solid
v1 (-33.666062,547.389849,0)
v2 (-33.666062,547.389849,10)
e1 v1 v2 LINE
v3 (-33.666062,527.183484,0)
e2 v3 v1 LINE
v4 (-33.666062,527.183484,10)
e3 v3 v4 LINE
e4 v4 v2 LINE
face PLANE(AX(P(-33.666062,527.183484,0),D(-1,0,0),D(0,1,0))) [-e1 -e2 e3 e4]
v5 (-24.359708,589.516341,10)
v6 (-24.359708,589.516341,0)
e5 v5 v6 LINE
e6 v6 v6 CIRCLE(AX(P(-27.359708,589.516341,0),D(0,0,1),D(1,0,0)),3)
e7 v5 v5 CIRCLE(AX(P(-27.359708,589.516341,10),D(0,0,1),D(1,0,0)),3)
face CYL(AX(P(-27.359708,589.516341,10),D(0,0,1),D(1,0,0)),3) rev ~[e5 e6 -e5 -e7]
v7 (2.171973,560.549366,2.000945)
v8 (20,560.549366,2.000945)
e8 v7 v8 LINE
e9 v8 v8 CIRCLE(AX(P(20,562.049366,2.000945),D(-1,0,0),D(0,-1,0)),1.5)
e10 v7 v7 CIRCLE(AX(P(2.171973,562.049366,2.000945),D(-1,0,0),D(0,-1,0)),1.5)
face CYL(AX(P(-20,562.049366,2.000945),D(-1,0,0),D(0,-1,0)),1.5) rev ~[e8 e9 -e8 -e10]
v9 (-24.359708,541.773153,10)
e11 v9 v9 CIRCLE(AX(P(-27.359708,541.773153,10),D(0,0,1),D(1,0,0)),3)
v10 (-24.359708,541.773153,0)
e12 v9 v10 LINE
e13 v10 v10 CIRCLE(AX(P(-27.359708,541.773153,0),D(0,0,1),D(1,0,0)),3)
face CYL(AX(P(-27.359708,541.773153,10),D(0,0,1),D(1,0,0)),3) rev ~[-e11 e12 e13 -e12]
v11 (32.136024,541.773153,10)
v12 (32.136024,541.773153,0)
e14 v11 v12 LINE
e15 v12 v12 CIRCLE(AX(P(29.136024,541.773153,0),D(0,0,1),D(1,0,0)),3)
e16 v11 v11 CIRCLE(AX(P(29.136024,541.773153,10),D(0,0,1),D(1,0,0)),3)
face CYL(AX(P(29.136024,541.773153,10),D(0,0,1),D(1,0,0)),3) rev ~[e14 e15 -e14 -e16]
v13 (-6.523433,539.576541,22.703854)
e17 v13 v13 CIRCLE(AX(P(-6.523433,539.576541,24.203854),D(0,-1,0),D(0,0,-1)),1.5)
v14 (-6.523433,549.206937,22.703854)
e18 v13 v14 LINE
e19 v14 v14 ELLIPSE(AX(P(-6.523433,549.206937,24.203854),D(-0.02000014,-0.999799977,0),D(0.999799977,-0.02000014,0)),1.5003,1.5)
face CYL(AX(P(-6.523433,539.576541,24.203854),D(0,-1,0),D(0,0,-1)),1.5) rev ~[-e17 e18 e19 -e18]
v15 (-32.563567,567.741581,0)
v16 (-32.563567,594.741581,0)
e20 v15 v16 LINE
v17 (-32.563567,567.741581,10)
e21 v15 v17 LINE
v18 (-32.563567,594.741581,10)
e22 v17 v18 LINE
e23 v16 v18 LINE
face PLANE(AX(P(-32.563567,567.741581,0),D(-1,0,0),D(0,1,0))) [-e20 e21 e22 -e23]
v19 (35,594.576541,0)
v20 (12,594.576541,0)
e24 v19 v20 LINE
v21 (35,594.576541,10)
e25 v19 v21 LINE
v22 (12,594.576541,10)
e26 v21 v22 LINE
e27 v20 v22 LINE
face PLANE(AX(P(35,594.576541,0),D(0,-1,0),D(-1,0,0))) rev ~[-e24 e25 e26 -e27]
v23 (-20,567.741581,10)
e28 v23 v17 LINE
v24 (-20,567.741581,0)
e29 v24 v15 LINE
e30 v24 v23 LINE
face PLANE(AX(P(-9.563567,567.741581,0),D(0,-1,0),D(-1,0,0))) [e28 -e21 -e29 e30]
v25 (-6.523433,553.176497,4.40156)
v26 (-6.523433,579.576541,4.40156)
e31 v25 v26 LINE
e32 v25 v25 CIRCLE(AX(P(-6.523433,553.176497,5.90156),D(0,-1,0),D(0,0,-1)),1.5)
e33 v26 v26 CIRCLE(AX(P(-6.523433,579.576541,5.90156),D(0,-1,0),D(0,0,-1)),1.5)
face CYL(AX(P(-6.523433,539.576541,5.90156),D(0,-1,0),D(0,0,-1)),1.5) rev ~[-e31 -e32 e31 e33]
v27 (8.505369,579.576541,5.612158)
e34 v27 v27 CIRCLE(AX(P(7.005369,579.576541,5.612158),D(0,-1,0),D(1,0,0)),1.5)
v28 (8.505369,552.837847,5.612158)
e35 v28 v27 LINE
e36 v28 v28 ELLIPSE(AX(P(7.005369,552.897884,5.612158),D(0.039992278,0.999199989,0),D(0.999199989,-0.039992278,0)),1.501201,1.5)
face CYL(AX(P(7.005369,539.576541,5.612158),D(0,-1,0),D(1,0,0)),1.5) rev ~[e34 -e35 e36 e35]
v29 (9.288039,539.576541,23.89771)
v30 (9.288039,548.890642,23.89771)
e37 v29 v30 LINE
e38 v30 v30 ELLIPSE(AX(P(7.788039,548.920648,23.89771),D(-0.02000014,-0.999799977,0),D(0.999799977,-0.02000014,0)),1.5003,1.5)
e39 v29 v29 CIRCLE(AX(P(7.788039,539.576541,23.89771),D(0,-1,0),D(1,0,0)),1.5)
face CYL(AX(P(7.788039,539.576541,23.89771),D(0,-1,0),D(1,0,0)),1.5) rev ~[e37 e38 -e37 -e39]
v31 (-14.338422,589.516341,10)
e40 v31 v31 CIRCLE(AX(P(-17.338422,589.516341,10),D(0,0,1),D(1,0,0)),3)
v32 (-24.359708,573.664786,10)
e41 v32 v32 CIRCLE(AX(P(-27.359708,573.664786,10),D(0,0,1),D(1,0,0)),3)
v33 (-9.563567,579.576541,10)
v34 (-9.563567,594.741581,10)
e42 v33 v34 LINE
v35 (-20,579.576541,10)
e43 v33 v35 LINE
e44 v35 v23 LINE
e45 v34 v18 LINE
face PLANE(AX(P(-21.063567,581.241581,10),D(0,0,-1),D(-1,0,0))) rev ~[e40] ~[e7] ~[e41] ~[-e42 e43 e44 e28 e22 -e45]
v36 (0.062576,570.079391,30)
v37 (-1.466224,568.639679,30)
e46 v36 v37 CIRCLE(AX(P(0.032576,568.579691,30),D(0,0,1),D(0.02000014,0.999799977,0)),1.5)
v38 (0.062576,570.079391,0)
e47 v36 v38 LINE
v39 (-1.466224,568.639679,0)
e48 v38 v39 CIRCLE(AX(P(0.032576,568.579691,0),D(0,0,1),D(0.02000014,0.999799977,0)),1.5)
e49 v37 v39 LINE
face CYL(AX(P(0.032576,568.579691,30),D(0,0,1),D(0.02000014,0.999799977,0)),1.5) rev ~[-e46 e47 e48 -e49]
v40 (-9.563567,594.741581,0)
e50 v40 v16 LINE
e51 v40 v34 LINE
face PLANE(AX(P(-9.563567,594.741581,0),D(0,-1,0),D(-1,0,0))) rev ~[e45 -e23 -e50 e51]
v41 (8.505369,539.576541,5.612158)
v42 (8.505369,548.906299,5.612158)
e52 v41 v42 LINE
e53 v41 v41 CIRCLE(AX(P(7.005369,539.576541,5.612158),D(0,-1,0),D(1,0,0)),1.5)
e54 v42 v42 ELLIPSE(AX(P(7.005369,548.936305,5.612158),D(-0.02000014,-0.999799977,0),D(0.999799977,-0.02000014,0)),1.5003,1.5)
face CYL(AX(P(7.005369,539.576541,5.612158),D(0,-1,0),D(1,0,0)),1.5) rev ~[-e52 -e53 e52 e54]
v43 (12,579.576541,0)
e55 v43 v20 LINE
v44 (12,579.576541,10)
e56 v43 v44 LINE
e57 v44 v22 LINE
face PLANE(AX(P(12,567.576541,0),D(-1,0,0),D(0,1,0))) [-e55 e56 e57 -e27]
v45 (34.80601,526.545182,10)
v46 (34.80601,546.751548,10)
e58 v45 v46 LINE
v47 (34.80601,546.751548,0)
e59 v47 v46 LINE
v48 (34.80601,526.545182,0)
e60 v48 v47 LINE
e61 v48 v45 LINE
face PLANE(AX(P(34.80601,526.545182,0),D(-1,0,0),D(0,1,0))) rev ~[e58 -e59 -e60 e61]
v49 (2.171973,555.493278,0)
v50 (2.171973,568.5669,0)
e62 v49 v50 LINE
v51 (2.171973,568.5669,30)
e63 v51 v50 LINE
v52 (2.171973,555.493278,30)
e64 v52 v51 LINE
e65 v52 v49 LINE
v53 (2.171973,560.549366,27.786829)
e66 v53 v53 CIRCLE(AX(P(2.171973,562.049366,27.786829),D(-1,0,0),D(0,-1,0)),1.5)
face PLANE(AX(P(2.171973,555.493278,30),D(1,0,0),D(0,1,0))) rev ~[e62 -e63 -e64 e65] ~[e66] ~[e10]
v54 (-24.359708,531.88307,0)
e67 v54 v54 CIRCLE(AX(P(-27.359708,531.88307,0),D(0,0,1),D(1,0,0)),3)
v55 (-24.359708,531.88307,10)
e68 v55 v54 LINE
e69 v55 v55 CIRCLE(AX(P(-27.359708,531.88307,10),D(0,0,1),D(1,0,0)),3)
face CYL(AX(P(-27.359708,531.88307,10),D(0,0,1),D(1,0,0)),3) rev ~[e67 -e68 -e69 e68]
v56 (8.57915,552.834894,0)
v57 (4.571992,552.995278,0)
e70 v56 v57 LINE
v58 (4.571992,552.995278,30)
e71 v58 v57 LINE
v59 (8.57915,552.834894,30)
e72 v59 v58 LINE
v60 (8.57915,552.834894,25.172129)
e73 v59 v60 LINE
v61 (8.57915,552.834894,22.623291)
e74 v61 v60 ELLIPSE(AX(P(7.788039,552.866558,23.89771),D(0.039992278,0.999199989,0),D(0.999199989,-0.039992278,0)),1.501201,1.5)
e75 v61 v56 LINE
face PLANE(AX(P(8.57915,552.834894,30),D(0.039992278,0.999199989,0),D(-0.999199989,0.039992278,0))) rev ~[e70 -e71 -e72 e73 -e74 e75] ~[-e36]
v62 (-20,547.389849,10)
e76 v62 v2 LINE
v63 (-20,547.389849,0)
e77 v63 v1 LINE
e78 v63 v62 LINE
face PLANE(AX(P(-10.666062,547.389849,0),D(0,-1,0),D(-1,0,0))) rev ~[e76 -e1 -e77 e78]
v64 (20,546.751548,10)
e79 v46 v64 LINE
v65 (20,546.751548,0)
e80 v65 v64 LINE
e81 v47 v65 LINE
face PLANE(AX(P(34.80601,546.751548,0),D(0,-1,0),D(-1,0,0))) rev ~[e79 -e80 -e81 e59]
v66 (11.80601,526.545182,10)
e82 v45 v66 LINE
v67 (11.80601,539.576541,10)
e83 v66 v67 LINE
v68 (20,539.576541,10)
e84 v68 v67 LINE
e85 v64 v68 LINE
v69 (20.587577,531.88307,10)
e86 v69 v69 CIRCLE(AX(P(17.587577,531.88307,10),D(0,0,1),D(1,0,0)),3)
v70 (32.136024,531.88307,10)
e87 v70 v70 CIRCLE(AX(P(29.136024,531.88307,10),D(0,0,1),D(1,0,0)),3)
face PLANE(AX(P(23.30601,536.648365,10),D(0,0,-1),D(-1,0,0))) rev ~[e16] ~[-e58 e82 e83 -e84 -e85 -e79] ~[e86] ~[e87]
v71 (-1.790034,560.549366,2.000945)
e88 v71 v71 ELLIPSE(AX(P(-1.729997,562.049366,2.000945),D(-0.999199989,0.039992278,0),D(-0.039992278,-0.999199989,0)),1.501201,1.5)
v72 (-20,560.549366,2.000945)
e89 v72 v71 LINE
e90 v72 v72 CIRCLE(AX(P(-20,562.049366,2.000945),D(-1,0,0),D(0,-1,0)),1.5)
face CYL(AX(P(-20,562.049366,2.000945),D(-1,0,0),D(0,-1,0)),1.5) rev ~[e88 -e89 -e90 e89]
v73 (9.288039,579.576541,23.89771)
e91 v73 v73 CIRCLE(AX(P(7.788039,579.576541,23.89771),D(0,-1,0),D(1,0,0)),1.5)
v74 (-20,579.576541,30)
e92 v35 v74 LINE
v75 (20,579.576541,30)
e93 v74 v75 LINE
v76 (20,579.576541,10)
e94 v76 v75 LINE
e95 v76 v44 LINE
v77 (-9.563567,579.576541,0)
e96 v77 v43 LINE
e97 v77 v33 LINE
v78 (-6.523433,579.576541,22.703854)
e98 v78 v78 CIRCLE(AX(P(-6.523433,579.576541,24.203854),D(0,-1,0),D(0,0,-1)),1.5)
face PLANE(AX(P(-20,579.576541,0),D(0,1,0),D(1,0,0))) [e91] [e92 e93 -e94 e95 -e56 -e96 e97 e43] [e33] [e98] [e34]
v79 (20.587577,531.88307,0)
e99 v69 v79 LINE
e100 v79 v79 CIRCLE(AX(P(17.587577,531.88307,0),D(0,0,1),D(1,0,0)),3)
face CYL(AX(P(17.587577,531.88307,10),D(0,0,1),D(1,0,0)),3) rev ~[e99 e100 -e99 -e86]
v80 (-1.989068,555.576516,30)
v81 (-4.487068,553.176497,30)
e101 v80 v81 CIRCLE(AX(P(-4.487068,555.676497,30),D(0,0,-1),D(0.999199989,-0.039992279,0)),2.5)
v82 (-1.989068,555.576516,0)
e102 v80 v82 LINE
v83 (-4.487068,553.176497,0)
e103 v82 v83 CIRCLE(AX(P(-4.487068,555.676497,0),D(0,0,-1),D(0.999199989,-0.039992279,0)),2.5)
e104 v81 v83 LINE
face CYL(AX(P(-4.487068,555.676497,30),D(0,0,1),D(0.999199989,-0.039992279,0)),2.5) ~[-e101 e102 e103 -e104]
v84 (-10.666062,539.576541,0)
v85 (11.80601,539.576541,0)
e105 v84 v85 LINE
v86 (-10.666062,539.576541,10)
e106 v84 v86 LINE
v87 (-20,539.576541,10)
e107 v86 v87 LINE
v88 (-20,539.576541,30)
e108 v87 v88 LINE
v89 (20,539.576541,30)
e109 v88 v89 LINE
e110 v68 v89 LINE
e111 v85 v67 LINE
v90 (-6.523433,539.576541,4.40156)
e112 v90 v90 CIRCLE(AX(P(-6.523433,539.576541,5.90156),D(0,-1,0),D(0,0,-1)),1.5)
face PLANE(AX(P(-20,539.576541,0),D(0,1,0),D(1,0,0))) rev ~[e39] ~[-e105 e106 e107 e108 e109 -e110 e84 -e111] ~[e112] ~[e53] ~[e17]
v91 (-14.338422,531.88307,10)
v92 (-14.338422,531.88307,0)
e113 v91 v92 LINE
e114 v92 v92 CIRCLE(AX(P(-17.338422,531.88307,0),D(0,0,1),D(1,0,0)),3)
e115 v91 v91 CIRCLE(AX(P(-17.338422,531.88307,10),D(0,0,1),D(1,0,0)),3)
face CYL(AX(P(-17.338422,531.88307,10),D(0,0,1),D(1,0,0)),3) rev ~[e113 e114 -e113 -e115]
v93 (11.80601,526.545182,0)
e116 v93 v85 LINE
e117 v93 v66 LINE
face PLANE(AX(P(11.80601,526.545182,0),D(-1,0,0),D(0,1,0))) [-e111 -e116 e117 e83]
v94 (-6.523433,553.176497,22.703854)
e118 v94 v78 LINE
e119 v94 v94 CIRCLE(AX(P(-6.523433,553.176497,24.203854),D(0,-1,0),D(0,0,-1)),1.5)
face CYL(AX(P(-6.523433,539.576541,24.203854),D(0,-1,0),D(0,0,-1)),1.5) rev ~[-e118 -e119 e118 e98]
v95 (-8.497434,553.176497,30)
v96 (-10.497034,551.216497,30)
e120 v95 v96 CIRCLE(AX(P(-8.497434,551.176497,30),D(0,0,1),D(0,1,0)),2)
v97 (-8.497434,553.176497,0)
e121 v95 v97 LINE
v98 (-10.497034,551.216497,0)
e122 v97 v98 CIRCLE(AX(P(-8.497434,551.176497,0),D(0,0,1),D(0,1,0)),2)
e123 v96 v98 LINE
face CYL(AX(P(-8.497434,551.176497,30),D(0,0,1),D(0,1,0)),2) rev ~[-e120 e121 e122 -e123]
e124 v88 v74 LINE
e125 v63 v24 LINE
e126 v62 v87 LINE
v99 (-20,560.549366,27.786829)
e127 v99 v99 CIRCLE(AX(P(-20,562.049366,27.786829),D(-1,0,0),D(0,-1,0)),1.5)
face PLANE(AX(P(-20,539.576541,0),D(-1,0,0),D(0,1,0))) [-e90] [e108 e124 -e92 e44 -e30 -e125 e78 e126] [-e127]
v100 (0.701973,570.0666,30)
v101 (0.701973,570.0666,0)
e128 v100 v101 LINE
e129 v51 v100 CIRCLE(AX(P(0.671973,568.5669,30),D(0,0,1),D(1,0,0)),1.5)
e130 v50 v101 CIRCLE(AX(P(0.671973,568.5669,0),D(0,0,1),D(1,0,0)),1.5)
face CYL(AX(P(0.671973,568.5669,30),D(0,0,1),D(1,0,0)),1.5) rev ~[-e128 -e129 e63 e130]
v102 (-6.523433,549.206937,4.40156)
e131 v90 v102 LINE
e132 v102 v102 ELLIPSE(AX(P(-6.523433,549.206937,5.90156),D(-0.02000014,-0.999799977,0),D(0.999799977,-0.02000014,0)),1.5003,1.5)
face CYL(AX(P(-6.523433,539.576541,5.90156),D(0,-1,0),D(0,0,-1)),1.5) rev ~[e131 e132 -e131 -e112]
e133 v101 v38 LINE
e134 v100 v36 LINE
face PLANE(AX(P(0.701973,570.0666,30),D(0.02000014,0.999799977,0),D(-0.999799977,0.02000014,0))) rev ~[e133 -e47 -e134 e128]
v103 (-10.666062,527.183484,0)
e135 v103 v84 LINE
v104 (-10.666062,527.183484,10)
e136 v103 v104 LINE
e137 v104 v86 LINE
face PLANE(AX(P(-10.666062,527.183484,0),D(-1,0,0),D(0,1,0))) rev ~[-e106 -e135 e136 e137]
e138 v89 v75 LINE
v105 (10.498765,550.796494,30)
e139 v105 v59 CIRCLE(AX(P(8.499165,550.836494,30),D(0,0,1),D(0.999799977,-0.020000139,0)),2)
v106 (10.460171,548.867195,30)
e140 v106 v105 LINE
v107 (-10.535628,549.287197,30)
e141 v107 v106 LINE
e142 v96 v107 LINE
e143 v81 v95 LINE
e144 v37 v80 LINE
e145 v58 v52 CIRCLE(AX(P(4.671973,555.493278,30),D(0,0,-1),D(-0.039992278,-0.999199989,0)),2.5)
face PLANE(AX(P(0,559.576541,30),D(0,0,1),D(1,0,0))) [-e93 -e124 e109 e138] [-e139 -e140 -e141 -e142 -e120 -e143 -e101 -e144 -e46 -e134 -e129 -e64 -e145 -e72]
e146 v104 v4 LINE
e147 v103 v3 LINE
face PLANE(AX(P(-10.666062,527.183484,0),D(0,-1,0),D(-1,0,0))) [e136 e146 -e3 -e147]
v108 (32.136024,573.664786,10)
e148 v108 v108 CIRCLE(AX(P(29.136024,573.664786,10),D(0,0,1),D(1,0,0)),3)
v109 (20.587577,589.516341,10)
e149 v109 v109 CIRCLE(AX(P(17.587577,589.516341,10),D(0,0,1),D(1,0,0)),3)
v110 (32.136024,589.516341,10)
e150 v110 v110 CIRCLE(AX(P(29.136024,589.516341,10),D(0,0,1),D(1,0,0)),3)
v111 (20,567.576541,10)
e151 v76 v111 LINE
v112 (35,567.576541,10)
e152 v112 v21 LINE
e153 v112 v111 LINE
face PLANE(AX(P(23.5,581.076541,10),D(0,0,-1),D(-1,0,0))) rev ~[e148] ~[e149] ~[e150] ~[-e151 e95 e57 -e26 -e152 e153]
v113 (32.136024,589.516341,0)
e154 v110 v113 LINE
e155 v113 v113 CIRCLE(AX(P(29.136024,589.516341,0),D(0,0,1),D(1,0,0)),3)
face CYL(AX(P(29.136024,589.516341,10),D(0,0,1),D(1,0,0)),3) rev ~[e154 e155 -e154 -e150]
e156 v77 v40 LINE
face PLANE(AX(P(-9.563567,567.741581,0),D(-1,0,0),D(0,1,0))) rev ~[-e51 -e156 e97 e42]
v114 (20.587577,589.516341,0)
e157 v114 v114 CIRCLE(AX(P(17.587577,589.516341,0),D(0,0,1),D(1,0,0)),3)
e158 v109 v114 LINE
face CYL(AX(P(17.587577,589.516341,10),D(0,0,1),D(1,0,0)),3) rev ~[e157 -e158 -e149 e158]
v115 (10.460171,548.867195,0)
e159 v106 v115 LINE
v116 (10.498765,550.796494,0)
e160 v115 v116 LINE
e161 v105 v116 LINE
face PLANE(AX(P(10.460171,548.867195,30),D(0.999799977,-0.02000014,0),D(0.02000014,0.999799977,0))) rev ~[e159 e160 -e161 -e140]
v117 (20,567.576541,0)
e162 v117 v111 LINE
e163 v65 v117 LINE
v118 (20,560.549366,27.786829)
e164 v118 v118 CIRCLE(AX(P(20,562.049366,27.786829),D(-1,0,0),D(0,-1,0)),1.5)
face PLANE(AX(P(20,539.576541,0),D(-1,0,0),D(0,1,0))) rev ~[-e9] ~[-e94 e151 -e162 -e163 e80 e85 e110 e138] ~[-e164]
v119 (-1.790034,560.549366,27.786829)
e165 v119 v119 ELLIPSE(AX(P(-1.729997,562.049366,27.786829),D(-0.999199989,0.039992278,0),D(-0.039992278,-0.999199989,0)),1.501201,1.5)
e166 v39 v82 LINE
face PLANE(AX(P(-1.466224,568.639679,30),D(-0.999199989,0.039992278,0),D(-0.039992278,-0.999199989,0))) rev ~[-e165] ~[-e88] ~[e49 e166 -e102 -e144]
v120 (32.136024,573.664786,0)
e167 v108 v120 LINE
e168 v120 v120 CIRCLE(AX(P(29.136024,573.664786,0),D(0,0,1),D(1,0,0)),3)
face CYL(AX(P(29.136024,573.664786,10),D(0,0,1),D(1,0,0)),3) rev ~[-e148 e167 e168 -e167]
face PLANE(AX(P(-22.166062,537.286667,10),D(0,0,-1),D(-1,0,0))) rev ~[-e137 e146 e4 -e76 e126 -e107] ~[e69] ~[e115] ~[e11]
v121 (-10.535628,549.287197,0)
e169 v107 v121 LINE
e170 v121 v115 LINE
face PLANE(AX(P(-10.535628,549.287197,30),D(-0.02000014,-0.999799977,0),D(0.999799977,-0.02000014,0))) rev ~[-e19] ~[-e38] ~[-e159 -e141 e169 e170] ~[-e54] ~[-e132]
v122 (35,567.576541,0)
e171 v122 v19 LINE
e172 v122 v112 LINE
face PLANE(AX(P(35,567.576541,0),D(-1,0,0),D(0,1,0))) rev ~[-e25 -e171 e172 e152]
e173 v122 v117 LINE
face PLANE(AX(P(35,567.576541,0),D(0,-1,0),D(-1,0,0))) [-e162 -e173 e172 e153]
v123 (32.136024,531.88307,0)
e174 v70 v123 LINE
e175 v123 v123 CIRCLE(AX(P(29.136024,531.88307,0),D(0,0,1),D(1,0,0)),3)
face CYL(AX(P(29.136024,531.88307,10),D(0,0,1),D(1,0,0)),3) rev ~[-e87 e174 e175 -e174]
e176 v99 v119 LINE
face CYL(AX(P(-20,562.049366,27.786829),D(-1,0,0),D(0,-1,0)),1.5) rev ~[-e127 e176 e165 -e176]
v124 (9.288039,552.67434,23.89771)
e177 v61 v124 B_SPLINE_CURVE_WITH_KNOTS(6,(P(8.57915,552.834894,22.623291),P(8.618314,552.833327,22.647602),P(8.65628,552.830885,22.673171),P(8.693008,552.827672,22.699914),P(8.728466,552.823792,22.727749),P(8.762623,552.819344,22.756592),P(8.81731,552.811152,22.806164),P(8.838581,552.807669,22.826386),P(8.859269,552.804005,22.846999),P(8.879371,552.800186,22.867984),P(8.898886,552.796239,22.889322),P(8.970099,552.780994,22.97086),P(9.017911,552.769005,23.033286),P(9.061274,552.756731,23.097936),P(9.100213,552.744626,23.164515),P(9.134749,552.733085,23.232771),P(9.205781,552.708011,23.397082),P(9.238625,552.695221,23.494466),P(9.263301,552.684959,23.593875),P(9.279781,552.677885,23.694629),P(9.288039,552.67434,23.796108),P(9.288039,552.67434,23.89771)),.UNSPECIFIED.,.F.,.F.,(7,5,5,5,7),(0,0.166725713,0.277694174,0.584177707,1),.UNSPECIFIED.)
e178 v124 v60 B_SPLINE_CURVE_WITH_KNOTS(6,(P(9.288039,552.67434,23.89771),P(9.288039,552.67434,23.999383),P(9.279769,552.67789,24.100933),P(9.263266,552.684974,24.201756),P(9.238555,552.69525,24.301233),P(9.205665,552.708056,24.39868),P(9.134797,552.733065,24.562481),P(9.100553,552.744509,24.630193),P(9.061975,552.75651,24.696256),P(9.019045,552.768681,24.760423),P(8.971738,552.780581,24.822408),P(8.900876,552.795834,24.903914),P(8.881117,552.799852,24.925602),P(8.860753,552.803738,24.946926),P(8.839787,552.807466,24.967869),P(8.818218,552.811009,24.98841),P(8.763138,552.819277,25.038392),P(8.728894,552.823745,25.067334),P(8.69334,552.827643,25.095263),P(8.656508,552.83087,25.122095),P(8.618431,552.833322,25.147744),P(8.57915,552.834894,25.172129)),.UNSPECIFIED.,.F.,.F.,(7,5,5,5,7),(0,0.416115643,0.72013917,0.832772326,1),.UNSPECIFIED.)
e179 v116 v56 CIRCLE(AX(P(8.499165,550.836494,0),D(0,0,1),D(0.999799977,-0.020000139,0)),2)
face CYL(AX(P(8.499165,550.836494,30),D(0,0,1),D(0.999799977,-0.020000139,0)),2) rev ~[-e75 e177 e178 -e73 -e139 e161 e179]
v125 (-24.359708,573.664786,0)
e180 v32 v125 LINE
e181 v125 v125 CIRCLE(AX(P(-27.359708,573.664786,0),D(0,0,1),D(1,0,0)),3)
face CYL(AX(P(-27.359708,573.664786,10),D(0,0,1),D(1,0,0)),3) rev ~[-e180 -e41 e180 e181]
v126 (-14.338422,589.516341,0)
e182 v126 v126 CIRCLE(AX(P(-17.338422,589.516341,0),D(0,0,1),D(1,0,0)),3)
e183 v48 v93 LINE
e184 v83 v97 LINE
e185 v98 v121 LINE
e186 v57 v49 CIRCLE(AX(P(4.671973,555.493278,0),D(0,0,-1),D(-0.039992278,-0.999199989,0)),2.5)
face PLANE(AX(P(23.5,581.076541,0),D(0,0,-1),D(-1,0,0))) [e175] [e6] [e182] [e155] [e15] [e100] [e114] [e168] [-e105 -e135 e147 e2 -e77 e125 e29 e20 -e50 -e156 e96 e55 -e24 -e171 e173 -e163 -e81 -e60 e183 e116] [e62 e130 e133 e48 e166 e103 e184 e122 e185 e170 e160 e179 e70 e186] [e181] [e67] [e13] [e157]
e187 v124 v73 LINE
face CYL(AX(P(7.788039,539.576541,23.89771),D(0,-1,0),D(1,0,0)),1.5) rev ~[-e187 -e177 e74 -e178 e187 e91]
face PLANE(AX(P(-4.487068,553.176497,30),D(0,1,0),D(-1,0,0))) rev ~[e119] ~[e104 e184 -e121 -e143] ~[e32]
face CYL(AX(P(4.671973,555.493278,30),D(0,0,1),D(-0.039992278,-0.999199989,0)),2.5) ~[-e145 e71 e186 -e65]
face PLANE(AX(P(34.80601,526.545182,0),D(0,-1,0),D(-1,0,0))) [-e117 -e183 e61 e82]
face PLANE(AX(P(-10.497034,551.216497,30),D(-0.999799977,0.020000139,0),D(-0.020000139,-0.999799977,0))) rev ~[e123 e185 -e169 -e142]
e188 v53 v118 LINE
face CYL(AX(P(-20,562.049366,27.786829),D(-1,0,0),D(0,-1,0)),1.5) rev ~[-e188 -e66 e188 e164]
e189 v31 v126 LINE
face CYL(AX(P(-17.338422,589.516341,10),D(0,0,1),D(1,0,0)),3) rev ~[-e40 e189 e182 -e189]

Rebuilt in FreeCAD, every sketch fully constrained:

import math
import FreeCAD as App
import Part
import Sketcher
Q = App.Units.Quantity


def add_polygon(sketch, points):
    """Adds a closed chain of lines whose ends are joined by coincident constraints."""
    first, n = sketch.GeometryCount, len(points)
    for a, b in zip(points, points[1:] + points[:1]):
        sketch.addGeometry(Part.LineSegment(App.Vector(*a, 0), App.Vector(*b, 0)), False)
    for i in range(n):
        sketch.addConstraint(Sketcher.Constraint("Coincident", first + i, 2, first + (i + 1) % n, 1))

doc = App.newDocument("Part")
params = doc.addObject("Spreadsheet::Sheet", "Params")
for row, (alias, value) in enumerate([
    ("sketch1_radius", "3 mm"),
    ("sketch1_radius2", "1 mm"),
    ("sketch1_radius3", "1.5 mm"),
    ("sketch1_width", "40 mm"),
    ("sketch1_length", "20 mm"),
    ("pad1_length", "30 mm"),
    ("sketch2_radius", "2 mm"),
    ("sketch2_radius2", "1.5 mm"),
    ("sketch2_radius3", "2.5 mm"),
    ("sketch2_length", "21 mm"),
    ("pocket1_length", "30 mm"),
    ("sketch3_diameter", "3 mm"),
    ("sketch4_diameter", "3 mm"),
    ("sketch5_width", "23 mm"),
    ("sketch5_height", "27 mm"),
    ("pad2_length", "10 mm"),
    ("sketch6_diameter", "6 mm"),
], start=1):
    params.set(f"A{row}", alias)
    params.set(f"B{row}", "=" + value)
    params.setAlias(f"B{row}", alias)

body = doc.addObject("PartDesign::Body", "Body")

# Sketch on XY plane
sketch1 = doc.addObject("Sketcher::SketchObject", "Sketch")
body.addObject(sketch1)
sketch1.AttachmentSupport = (doc.XY_Plane, [""])
sketch1.MapMode = "FlatFace"
add_polygon(sketch1, [(-20, 579.576541), (-20, 539.576541), (20, 539.576541), (20, 579.576541)])  # lines 0-3
sketch1.addGeometry(Part.LineSegment(App.Vector(9.970271, 549.377095, 0), App.Vector(-10.025728, 549.777097, 0)), False)  # 4
sketch1.addGeometry(Part.LineSegment(App.Vector(-10.025728, 549.777097, 0), App.Vector(-9.997134, 551.206497, 0)), False)  # 5
sketch1.addGeometry(Part.ArcOfCircle(Part.Circle(App.Vector(-8.497434, 551.176497, 0), App.Vector(0, 0, 1), 1.5), math.radians(90), math.radians(178.854)), False)  # 6
sketch1.addGeometry(Part.LineSegment(App.Vector(-8.497434, 552.676497, 0), App.Vector(-4.487068, 552.676497, 0)), False)  # 7
sketch1.addGeometry(Part.ArcOfCircle(Part.Circle(App.Vector(-4.487068, 555.676497, 0), App.Vector(0, 0, 1), 3), math.radians(-90), math.radians(-2.292)), False)  # 8
sketch1.addGeometry(Part.LineSegment(App.Vector(-1.489468, 555.55652, 0), App.Vector(-0.966624, 568.619683, 0)), False)  # 9
sketch1.addGeometry(Part.ArcOfCircle(Part.Circle(App.Vector(0.032576, 568.579691, 0), App.Vector(0, 0, 1), 1), math.radians(88.854), math.radians(177.708)), False)  # 10
sketch1.addGeometry(Part.LineSegment(App.Vector(0.052576, 569.579491, 0), App.Vector(0.691973, 569.5667, 0)), False)  # 11
sketch1.addGeometry(Part.ArcOfCircle(Part.Circle(App.Vector(0.671973, 568.5669, 0), App.Vector(0, 0, 1), 1), math.radians(0), math.radians(88.854)), False)  # 12
sketch1.addGeometry(Part.LineSegment(App.Vector(1.671973, 568.5669, 0), App.Vector(1.671973, 555.493278, 0)), False)  # 13
sketch1.addGeometry(Part.ArcOfCircle(Part.Circle(App.Vector(4.671973, 555.493278, 0), App.Vector(0, 0, 1), 3), math.radians(-180), math.radians(-92.292)), False)  # 14
sketch1.addGeometry(Part.LineSegment(App.Vector(4.551996, 552.495678, 0), App.Vector(8.559154, 552.335294, 0)), False)  # 15
sketch1.addGeometry(Part.ArcOfCircle(Part.Circle(App.Vector(8.499165, 550.836494, 0), App.Vector(0, 0, 1), 1.5), math.radians(-1.146), math.radians(87.708)), False)  # 16
sketch1.addGeometry(Part.LineSegment(App.Vector(9.998865, 550.806494, 0), App.Vector(9.970271, 549.377095, 0)), False)  # 17
sketch1.addConstraint(Sketcher.Constraint("Coincident", 4, 2, 5, 1))
sketch1.addConstraint(Sketcher.Constraint("Tangent", 5, 2, 6, 2))
sketch1.addConstraint(Sketcher.Constraint("Tangent", 6, 1, 7, 1))
sketch1.addConstraint(Sketcher.Constraint("Tangent", 7, 2, 8, 1))
sketch1.addConstraint(Sketcher.Constraint("Tangent", 8, 2, 9, 1))
sketch1.addConstraint(Sketcher.Constraint("Tangent", 9, 2, 10, 2))
sketch1.addConstraint(Sketcher.Constraint("Tangent", 10, 1, 11, 1))
sketch1.addConstraint(Sketcher.Constraint("Tangent", 11, 2, 12, 2))
sketch1.addConstraint(Sketcher.Constraint("Tangent", 12, 1, 13, 1))
sketch1.addConstraint(Sketcher.Constraint("Tangent", 13, 2, 14, 1))
sketch1.addConstraint(Sketcher.Constraint("Tangent", 14, 2, 15, 1))
sketch1.addConstraint(Sketcher.Constraint("Tangent", 15, 2, 16, 2))
sketch1.addConstraint(Sketcher.Constraint("Tangent", 16, 1, 17, 1))
sketch1.addConstraint(Sketcher.Constraint("Coincident", 17, 2, 4, 1))
sketch1.addConstraint(Sketcher.Constraint("Vertical", 0))
sketch1.addConstraint(Sketcher.Constraint("Horizontal", 1))
sketch1.addConstraint(Sketcher.Constraint("Vertical", 2))
sketch1.addConstraint(Sketcher.Constraint("Horizontal", 3))
sketch1.addConstraint(Sketcher.Constraint("Horizontal", 7))
sketch1.addConstraint(Sketcher.Constraint("Vertical", 13))
sketch1.addConstraint(Sketcher.Constraint("Equal", 10, 12))
sketch1.addConstraint(Sketcher.Constraint("Equal", 8, 14))
sketch1.addConstraint(Sketcher.Constraint("Equal", 6, 16))
sketch1.addConstraint(Sketcher.Constraint("Perpendicular", 4, 5))
sketch1.addConstraint(Sketcher.Constraint("Perpendicular", 5, 11))
sketch1.addConstraint(Sketcher.Constraint("Perpendicular", 9, 15))
sketch1.addConstraint(Sketcher.Constraint("Perpendicular", 11, 17))
sketch1.addConstraint(Sketcher.Constraint("Equal", 3, 0))
sketch1.addConstraint(Sketcher.Constraint("Equal", 5, 17))
sketch1.addConstraint(Sketcher.Constraint("Radius", 8, Q("3 mm")))
sketch1.addConstraint(Sketcher.Constraint("Radius", 10, Q("1 mm")))
sketch1.addConstraint(Sketcher.Constraint("Radius", 6, Q("1.5 mm")))
sketch1.addConstraint(Sketcher.Constraint("DistanceX", 1, 1, 1, 2, Q("40 mm")))
sketch1.addConstraint(Sketcher.Constraint("Distance", 4, Q("20 mm")))
sketch1.addConstraint(Sketcher.Constraint("DistanceX", 0, 2, -1, 1, Q("20 mm")))
sketch1.addConstraint(Sketcher.Constraint("DistanceY", 6, 3, 5, 2, Q("0.03 mm")))
sketch1.addConstraint(Sketcher.Constraint("DistanceY", -1, 1, 12, 3, Q("568.5669 mm")))
sketch1.addConstraint(Sketcher.Constraint("DistanceY", 4, 2, 6, 3, Q("1.399399 mm")))
sketch1.addConstraint(Sketcher.Constraint("DistanceX", 4, 2, 14, 3, Q("14.697701 mm")))
sketch1.addConstraint(Sketcher.Constraint("DistanceX", 8, 3, 8, 2, Q("2.9976 mm")))
sketch1.addConstraint(Sketcher.Constraint("DistanceX", 7, 1, 7, 2, Q("4.010366 mm")))
sketch1.addConstraint(Sketcher.Constraint("DistanceY", 13, 2, 13, 1, Q("13.073622 mm")))
sketch1.addConstraint(Sketcher.Constraint("DistanceX", 8, 3, -1, 1, Q("4.487068 mm")))
sketch1.addConstraint(Sketcher.Constraint("DistanceY", -1, 1, 0, 2, Q("539.576541 mm")))
sketch1.setExpression("Constraints[33]", "Params.sketch1_radius")
sketch1.setExpression("Constraints[34]", "Params.sketch1_radius2")
sketch1.setExpression("Constraints[35]", "Params.sketch1_radius3")
sketch1.setExpression("Constraints[36]", "Params.sketch1_width")
sketch1.setExpression("Constraints[37]", "Params.sketch1_length")
pad1 = doc.addObject("PartDesign::Pad", "Pad")
body.addObject(pad1)
pad1.Profile = sketch1
pad1.setExpression("Length", "Params.pad1_length")

# Sketch on XY plane
sketch2 = doc.addObject("Sketcher::SketchObject", "Sketch001")
body.addObject(sketch2)
sketch2.AttachmentSupport = (doc.XY_Plane, [""])
sketch2.MapMode = "FlatFace"
sketch2.AttachmentOffset = App.Placement(App.Vector(0, 0, 30), App.Rotation())
sketch2.addGeometry(Part.LineSegment(App.Vector(0.701973, 570.0666, 0), App.Vector(0.062576, 570.079391, 0)), False)
sketch2.addGeometry(Part.ArcOfCircle(Part.Circle(App.Vector(0.032576, 568.579691, 0), App.Vector(0, 0, 1), 1.5), math.radians(88.854), math.radians(177.708)), False)
sketch2.addGeometry(Part.LineSegment(App.Vector(-1.466224, 568.639679, 0), App.Vector(-1.989068, 555.576516, 0)), False)
sketch2.addGeometry(Part.ArcOfCircle(Part.Circle(App.Vector(-4.487068, 555.676497, 0), App.Vector(0, 0, 1), 2.5), math.radians(-90), math.radians(-2.292)), False)
sketch2.addGeometry(Part.LineSegment(App.Vector(-4.487068, 553.176497, 0), App.Vector(-8.497434, 553.176497, 0)), False)
sketch2.addGeometry(Part.ArcOfCircle(Part.Circle(App.Vector(-8.497434, 551.176497, 0), App.Vector(0, 0, 1), 2), math.radians(90), math.radians(178.854)), False)
sketch2.addGeometry(Part.LineSegment(App.Vector(-10.497034, 551.216497, 0), App.Vector(-10.535628, 549.287197, 0)), False)
sketch2.addGeometry(Part.LineSegment(App.Vector(-10.535628, 549.287197, 0), App.Vector(10.460171, 548.867195, 0)), False)
sketch2.addGeometry(Part.LineSegment(App.Vector(10.460171, 548.867195, 0), App.Vector(10.498765, 550.796494, 0)), False)
sketch2.addGeometry(Part.ArcOfCircle(Part.Circle(App.Vector(8.499165, 550.836494, 0), App.Vector(0, 0, 1), 2), math.radians(-1.146), math.radians(87.708)), False)
sketch2.addGeometry(Part.LineSegment(App.Vector(8.57915, 552.834894, 0), App.Vector(4.571992, 552.995278, 0)), False)
sketch2.addGeometry(Part.ArcOfCircle(Part.Circle(App.Vector(4.671973, 555.493278, 0), App.Vector(0, 0, 1), 2.5), math.radians(180), math.radians(267.708)), False)
sketch2.addGeometry(Part.LineSegment(App.Vector(2.171973, 555.493278, 0), App.Vector(2.171973, 568.5669, 0)), False)
sketch2.addGeometry(Part.ArcOfCircle(Part.Circle(App.Vector(0.671973, 568.5669, 0), App.Vector(0, 0, 1), 1.5), math.radians(0), math.radians(88.854)), False)
sketch2.addConstraint(Sketcher.Constraint("Tangent", 0, 2, 1, 1))
sketch2.addConstraint(Sketcher.Constraint("Tangent", 1, 2, 2, 1))
sketch2.addConstraint(Sketcher.Constraint("Tangent", 2, 2, 3, 2))
sketch2.addConstraint(Sketcher.Constraint("Tangent", 3, 1, 4, 1))
sketch2.addConstraint(Sketcher.Constraint("Tangent", 4, 2, 5, 1))
sketch2.addConstraint(Sketcher.Constraint("Tangent", 5, 2, 6, 1))
sketch2.addConstraint(Sketcher.Constraint("Coincident", 6, 2, 7, 1))
sketch2.addConstraint(Sketcher.Constraint("Coincident", 7, 2, 8, 1))
sketch2.addConstraint(Sketcher.Constraint("Tangent", 8, 2, 9, 1))
sketch2.addConstraint(Sketcher.Constraint("Tangent", 9, 2, 10, 1))
sketch2.addConstraint(Sketcher.Constraint("Tangent", 10, 2, 11, 2))
sketch2.addConstraint(Sketcher.Constraint("Tangent", 11, 1, 12, 1))
sketch2.addConstraint(Sketcher.Constraint("Tangent", 12, 2, 13, 1))
sketch2.addConstraint(Sketcher.Constraint("Tangent", 13, 2, 0, 1))
sketch2.addConstraint(Sketcher.Constraint("Horizontal", 4))
sketch2.addConstraint(Sketcher.Constraint("Vertical", 12))
sketch2.addConstraint(Sketcher.Constraint("Equal", 5, 9))
sketch2.addConstraint(Sketcher.Constraint("Equal", 3, 11))
sketch2.addConstraint(Sketcher.Constraint("Equal", 1, 13))
sketch2.addConstraint(Sketcher.Constraint("Perpendicular", 0, 6))
sketch2.addConstraint(Sketcher.Constraint("Perpendicular", 6, 7))
sketch2.addConstraint(Sketcher.Constraint("Perpendicular", 7, 8))
sketch2.addConstraint(Sketcher.Constraint("Perpendicular", 2, 10))
sketch2.addConstraint(Sketcher.Constraint("Equal", 6, 8))
sketch2.addConstraint(Sketcher.Constraint("Radius", 5, Q("2 mm")))
sketch2.addConstraint(Sketcher.Constraint("Radius", 1, Q("1.5 mm")))
sketch2.addConstraint(Sketcher.Constraint("Radius", 3, Q("2.5 mm")))
sketch2.addConstraint(Sketcher.Constraint("Distance", 7, Q("21 mm")))
sketch2.addConstraint(Sketcher.Constraint("DistanceX", 1, 3, 0, 2, Q("0.03 mm")))
sketch2.addConstraint(Sketcher.Constraint("DistanceX", 3, 3, 2, 2, Q("2.498 mm")))
sketch2.addConstraint(Sketcher.Constraint("DistanceY", -1, 1, 13, 3, Q("568.5669 mm")))
sketch2.addConstraint(Sketcher.Constraint("DistanceY", 11, 3, 1, 2, Q("13.146401 mm")))
sketch2.addConstraint(Sketcher.Constraint("DistanceY", 6, 2, 5, 2, Q("1.929299 mm")))
sketch2.addConstraint(Sketcher.Constraint("DistanceX", 11, 3, 7, 2, Q("5.788198 mm")))
sketch2.addConstraint(Sketcher.Constraint("DistanceX", 4, 2, 4, 1, Q("4.010366 mm")))
sketch2.addConstraint(Sketcher.Constraint("DistanceX", 3, 3, -1, 1, Q("4.487068 mm")))
sketch2.setExpression("Constraints[24]", "Params.sketch2_radius")
sketch2.setExpression("Constraints[25]", "Params.sketch2_radius2")
sketch2.setExpression("Constraints[26]", "Params.sketch2_radius3")
sketch2.setExpression("Constraints[27]", "Params.sketch2_length")
pocket1 = doc.addObject("PartDesign::Pocket", "Pocket")
body.addObject(pocket1)
pocket1.Profile = sketch2
pocket1.setExpression("Length", "Params.pocket1_length")

# Sketch on XZ plane
sketch3 = doc.addObject("Sketcher::SketchObject", "Sketch002")
body.addObject(sketch3)
sketch3.AttachmentSupport = (doc.XZ_Plane, [""])
sketch3.MapMode = "FlatFace"
sketch3.AttachmentOffset = App.Placement(App.Vector(0, 0, -539.576541), App.Rotation())
sketch3.addGeometry(Part.Circle(App.Vector(-6.523433, 24.203854, 0), App.Vector(0, 0, 1), 1.5), False)
sketch3.addGeometry(Part.Circle(App.Vector(-6.523433, 5.90156, 0), App.Vector(0, 0, 1), 1.5), False)
sketch3.addGeometry(Part.Circle(App.Vector(7.005369, 5.612158, 0), App.Vector(0, 0, 1), 1.5), False)
sketch3.addGeometry(Part.Circle(App.Vector(7.788039, 23.89771, 0), App.Vector(0, 0, 1), 1.5), False)
sketch3.addConstraint(Sketcher.Constraint("Equal", 0, 1))
sketch3.addConstraint(Sketcher.Constraint("Equal", 1, 2))
sketch3.addConstraint(Sketcher.Constraint("Equal", 2, 3))
sketch3.addConstraint(Sketcher.Constraint("Vertical", 0, 3, 1, 3))
sketch3.addConstraint(Sketcher.Constraint("Diameter", 0, Q("3 mm")))
sketch3.addConstraint(Sketcher.Constraint("DistanceY", 2, 3, 1, 3, Q("0.289402 mm")))
sketch3.addConstraint(Sketcher.Constraint("DistanceY", -1, 1, 1, 3, Q("5.90156 mm")))
sketch3.addConstraint(Sketcher.Constraint("DistanceX", -1, 1, 2, 3, Q("7.005369 mm")))
sketch3.addConstraint(Sketcher.Constraint("DistanceX", -1, 1, 3, 3, Q("7.788039 mm")))
sketch3.addConstraint(Sketcher.Constraint("DistanceY", -1, 1, 3, 3, Q("23.89771 mm")))
sketch3.addConstraint(Sketcher.Constraint("DistanceX", 0, 3, -1, 1, Q("6.523433 mm")))
sketch3.addConstraint(Sketcher.Constraint("DistanceY", -1, 1, 0, 3, Q("24.203854 mm")))
sketch3.setExpression("Constraints[4]", "Params.sketch3_diameter")
pocket2 = doc.addObject("PartDesign::Pocket", "Pocket001")
body.addObject(pocket2)
pocket2.Profile = sketch3
pocket2.Type = "ThroughAll"

# Sketch on YZ plane
sketch4 = doc.addObject("Sketcher::SketchObject", "Sketch003")
body.addObject(sketch4)
sketch4.AttachmentSupport = (doc.YZ_Plane, [""])
sketch4.MapMode = "FlatFace"
sketch4.AttachmentOffset = App.Placement(App.Vector(0, 0, -20), App.Rotation())
sketch4.addGeometry(Part.Circle(App.Vector(562.049366, 27.786829, 0), App.Vector(0, 0, 1), 1.5), False)
sketch4.addGeometry(Part.Circle(App.Vector(562.049366, 2.000945, 0), App.Vector(0, 0, 1), 1.5), False)
sketch4.addConstraint(Sketcher.Constraint("Equal", 0, 1))
sketch4.addConstraint(Sketcher.Constraint("Vertical", 0, 3, 1, 3))
sketch4.addConstraint(Sketcher.Constraint("Diameter", 0, Q("3 mm")))
sketch4.addConstraint(Sketcher.Constraint("DistanceY", -1, 1, 0, 3, Q("27.786829 mm")))
sketch4.addConstraint(Sketcher.Constraint("DistanceX", -1, 1, 0, 3, Q("562.049366 mm")))
sketch4.addConstraint(Sketcher.Constraint("DistanceY", -1, 1, 1, 3, Q("2.000945 mm")))
sketch4.setExpression("Constraints[2]", "Params.sketch4_diameter")
pocket3 = doc.addObject("PartDesign::Pocket", "Pocket002")
body.addObject(pocket3)
pocket3.Profile = sketch4
pocket3.Type = "ThroughAll"
pocket3.Reversed = True

# Sketch on XY plane
sketch5 = doc.addObject("Sketcher::SketchObject", "Sketch004")
body.addObject(sketch5)
sketch5.AttachmentSupport = (doc.XY_Plane, [""])
sketch5.MapMode = "FlatFace"
add_polygon(sketch5, [(35, 594.576541), (35, 567.576541), (12, 567.576541), (12, 594.576541)])  # lines 0-3
add_polygon(sketch5, [(-10.666062, 547.389849), (-10.666062, 527.183484), (-33.666062, 527.183484), (-33.666062, 547.389849)])  # lines 4-7
add_polygon(sketch5, [(-9.563567, 594.741581), (-9.563567, 567.741581), (-32.563567, 567.741581), (-32.563567, 594.741581)])  # lines 8-11
add_polygon(sketch5, [(34.80601, 546.751548), (34.80601, 526.545182), (11.80601, 526.545182), (11.80601, 546.751548)])  # lines 12-15
sketch5.addConstraint(Sketcher.Constraint("Vertical", 0))
sketch5.addConstraint(Sketcher.Constraint("Horizontal", 1))
sketch5.addConstraint(Sketcher.Constraint("Vertical", 2))
sketch5.addConstraint(Sketcher.Constraint("Horizontal", 3))
sketch5.addConstraint(Sketcher.Constraint("Vertical", 4))
sketch5.addConstraint(Sketcher.Constraint("Horizontal", 5))
sketch5.addConstraint(Sketcher.Constraint("Vertical", 6))
sketch5.addConstraint(Sketcher.Constraint("Horizontal", 7))
sketch5.addConstraint(Sketcher.Constraint("Vertical", 8))
sketch5.addConstraint(Sketcher.Constraint("Horizontal", 9))
sketch5.addConstraint(Sketcher.Constraint("Vertical", 10))
sketch5.addConstraint(Sketcher.Constraint("Horizontal", 11))
sketch5.addConstraint(Sketcher.Constraint("Vertical", 12))
sketch5.addConstraint(Sketcher.Constraint("Horizontal", 13))
sketch5.addConstraint(Sketcher.Constraint("Vertical", 14))
sketch5.addConstraint(Sketcher.Constraint("Horizontal", 15))
sketch5.addConstraint(Sketcher.Constraint("Equal", 3, 5))
sketch5.addConstraint(Sketcher.Constraint("Equal", 7, 9))
sketch5.addConstraint(Sketcher.Constraint("Equal", 11, 13))
sketch5.addConstraint(Sketcher.Constraint("Equal", 2, 8))
sketch5.addConstraint(Sketcher.Constraint("Equal", 6, 12))
sketch5.addConstraint(Sketcher.Constraint("DistanceX", 1, 2, 1, 1, Q("23 mm")))
sketch5.addConstraint(Sketcher.Constraint("DistanceY", 0, 2, 0, 1, Q("27 mm")))
sketch5.addConstraint(Sketcher.Constraint("DistanceX", -1, 1, 0, 2, Q("35 mm")))
sketch5.addConstraint(Sketcher.Constraint("DistanceY", 12, 2, 4, 2, Q("0.638302 mm")))
sketch5.addConstraint(Sketcher.Constraint("DistanceY", 12, 2, 8, 2, Q("41.196399 mm")))
sketch5.addConstraint(Sketcher.Constraint("DistanceY", 4, 2, 4, 1, Q("20.206365 mm")))
sketch5.addConstraint(Sketcher.Constraint("DistanceY", -1, 1, 0, 2, Q("567.576541 mm")))
sketch5.addConstraint(Sketcher.Constraint("DistanceX", 4, 2, -1, 1, Q("10.666062 mm")))
sketch5.addConstraint(Sketcher.Constraint("DistanceY", -1, 1, 6, 2, Q("547.389849 mm")))
sketch5.addConstraint(Sketcher.Constraint("DistanceX", -1, 1, 12, 2, Q("34.80601 mm")))
sketch5.addConstraint(Sketcher.Constraint("DistanceX", 8, 2, -1, 1, Q("9.563567 mm")))
sketch5.setExpression("Constraints[37]", "Params.sketch5_width")
sketch5.setExpression("Constraints[38]", "Params.sketch5_height")
pad2 = doc.addObject("PartDesign::Pad", "Pad001")
body.addObject(pad2)
pad2.Profile = sketch5
pad2.setExpression("Length", "Params.pad2_length")

# Sketch on XY plane
sketch6 = doc.addObject("Sketcher::SketchObject", "Sketch005")
body.addObject(sketch6)
sketch6.AttachmentSupport = (doc.XY_Plane, [""])
sketch6.MapMode = "FlatFace"
sketch6.AttachmentOffset = App.Placement(App.Vector(0, 0, 10), App.Rotation())
sketch6.addGeometry(Part.Circle(App.Vector(-27.359708, 589.516341, 0), App.Vector(0, 0, 1), 3), False)
sketch6.addGeometry(Part.Circle(App.Vector(-27.359708, 573.664786, 0), App.Vector(0, 0, 1), 3), False)
sketch6.addGeometry(Part.Circle(App.Vector(-27.359708, 541.773153, 0), App.Vector(0, 0, 1), 3), False)
sketch6.addGeometry(Part.Circle(App.Vector(-27.359708, 531.88307, 0), App.Vector(0, 0, 1), 3), False)
sketch6.addGeometry(Part.Circle(App.Vector(-17.338422, 531.88307, 0), App.Vector(0, 0, 1), 3), False)
sketch6.addGeometry(Part.Circle(App.Vector(-17.338422, 589.516341, 0), App.Vector(0, 0, 1), 3), False)
sketch6.addGeometry(Part.Circle(App.Vector(17.587577, 589.516341, 0), App.Vector(0, 0, 1), 3), False)
sketch6.addGeometry(Part.Circle(App.Vector(29.136024, 589.516341, 0), App.Vector(0, 0, 1), 3), False)
sketch6.addGeometry(Part.Circle(App.Vector(29.136024, 573.664786, 0), App.Vector(0, 0, 1), 3), False)
sketch6.addGeometry(Part.Circle(App.Vector(29.136024, 541.773153, 0), App.Vector(0, 0, 1), 3), False)
sketch6.addGeometry(Part.Circle(App.Vector(29.136024, 531.88307, 0), App.Vector(0, 0, 1), 3), False)
sketch6.addGeometry(Part.Circle(App.Vector(17.587577, 531.88307, 0), App.Vector(0, 0, 1), 3), False)
sketch6.addConstraint(Sketcher.Constraint("Equal", 0, 1))
sketch6.addConstraint(Sketcher.Constraint("Equal", 1, 2))
sketch6.addConstraint(Sketcher.Constraint("Equal", 2, 3))
sketch6.addConstraint(Sketcher.Constraint("Equal", 3, 4))
sketch6.addConstraint(Sketcher.Constraint("Equal", 4, 5))
sketch6.addConstraint(Sketcher.Constraint("Equal", 5, 6))
sketch6.addConstraint(Sketcher.Constraint("Equal", 6, 7))
sketch6.addConstraint(Sketcher.Constraint("Equal", 7, 8))
sketch6.addConstraint(Sketcher.Constraint("Equal", 8, 9))
sketch6.addConstraint(Sketcher.Constraint("Equal", 9, 10))
sketch6.addConstraint(Sketcher.Constraint("Equal", 10, 11))
sketch6.addConstraint(Sketcher.Constraint("Horizontal", 3, 3, 4, 3))
sketch6.addConstraint(Sketcher.Constraint("Horizontal", 0, 3, 5, 3))
sketch6.addConstraint(Sketcher.Constraint("Horizontal", 5, 3, 6, 3))
sketch6.addConstraint(Sketcher.Constraint("Horizontal", 6, 3, 7, 3))
sketch6.addConstraint(Sketcher.Constraint("Horizontal", 1, 3, 8, 3))
sketch6.addConstraint(Sketcher.Constraint("Horizontal", 2, 3, 9, 3))
sketch6.addConstraint(Sketcher.Constraint("Horizontal", 4, 3, 10, 3))
sketch6.addConstraint(Sketcher.Constraint("Horizontal", 10, 3, 11, 3))
sketch6.addConstraint(Sketcher.Constraint("Vertical", 0, 3, 1, 3))
sketch6.addConstraint(Sketcher.Constraint("Vertical", 1, 3, 2, 3))
sketch6.addConstraint(Sketcher.Constraint("Vertical", 2, 3, 3, 3))
sketch6.addConstraint(Sketcher.Constraint("Vertical", 4, 3, 5, 3))
sketch6.addConstraint(Sketcher.Constraint("Vertical", 7, 3, 8, 3))
sketch6.addConstraint(Sketcher.Constraint("Vertical", 8, 3, 9, 3))
sketch6.addConstraint(Sketcher.Constraint("Vertical", 9, 3, 10, 3))
sketch6.addConstraint(Sketcher.Constraint("Vertical", 6, 3, 11, 3))
sketch6.addConstraint(Sketcher.Constraint("Diameter", 0, Q("6 mm")))
sketch6.addConstraint(Sketcher.Constraint("DistanceX", 5, 3, 6, 3, Q("34.926 mm")))
sketch6.addConstraint(Sketcher.Constraint("DistanceY", -1, 1, 0, 3, Q("589.516341 mm")))
sketch6.addConstraint(Sketcher.Constraint("DistanceY", -1, 1, 3, 3, Q("531.88307 mm")))
sketch6.addConstraint(Sketcher.Constraint("DistanceY", 2, 3, 0, 3, Q("47.743188 mm")))
sketch6.addConstraint(Sketcher.Constraint("DistanceX", 0, 3, -1, 1, Q("27.359708 mm")))
sketch6.addConstraint(Sketcher.Constraint("DistanceY", -1, 1, 1, 3, Q("573.664786 mm")))
sketch6.addConstraint(Sketcher.Constraint("DistanceX", 4, 3, -1, 1, Q("17.338422 mm")))
sketch6.addConstraint(Sketcher.Constraint("DistanceX", -1, 1, 7, 3, Q("29.136024 mm")))
sketch6.setExpression("Constraints[27]", "Params.sketch6_diameter")
pocket4 = doc.addObject("PartDesign::Pocket", "Pocket003")
body.addObject(pocket4)
pocket4.Profile = sketch6
pocket4.Type = "ThroughAll"

doc.recompute()
